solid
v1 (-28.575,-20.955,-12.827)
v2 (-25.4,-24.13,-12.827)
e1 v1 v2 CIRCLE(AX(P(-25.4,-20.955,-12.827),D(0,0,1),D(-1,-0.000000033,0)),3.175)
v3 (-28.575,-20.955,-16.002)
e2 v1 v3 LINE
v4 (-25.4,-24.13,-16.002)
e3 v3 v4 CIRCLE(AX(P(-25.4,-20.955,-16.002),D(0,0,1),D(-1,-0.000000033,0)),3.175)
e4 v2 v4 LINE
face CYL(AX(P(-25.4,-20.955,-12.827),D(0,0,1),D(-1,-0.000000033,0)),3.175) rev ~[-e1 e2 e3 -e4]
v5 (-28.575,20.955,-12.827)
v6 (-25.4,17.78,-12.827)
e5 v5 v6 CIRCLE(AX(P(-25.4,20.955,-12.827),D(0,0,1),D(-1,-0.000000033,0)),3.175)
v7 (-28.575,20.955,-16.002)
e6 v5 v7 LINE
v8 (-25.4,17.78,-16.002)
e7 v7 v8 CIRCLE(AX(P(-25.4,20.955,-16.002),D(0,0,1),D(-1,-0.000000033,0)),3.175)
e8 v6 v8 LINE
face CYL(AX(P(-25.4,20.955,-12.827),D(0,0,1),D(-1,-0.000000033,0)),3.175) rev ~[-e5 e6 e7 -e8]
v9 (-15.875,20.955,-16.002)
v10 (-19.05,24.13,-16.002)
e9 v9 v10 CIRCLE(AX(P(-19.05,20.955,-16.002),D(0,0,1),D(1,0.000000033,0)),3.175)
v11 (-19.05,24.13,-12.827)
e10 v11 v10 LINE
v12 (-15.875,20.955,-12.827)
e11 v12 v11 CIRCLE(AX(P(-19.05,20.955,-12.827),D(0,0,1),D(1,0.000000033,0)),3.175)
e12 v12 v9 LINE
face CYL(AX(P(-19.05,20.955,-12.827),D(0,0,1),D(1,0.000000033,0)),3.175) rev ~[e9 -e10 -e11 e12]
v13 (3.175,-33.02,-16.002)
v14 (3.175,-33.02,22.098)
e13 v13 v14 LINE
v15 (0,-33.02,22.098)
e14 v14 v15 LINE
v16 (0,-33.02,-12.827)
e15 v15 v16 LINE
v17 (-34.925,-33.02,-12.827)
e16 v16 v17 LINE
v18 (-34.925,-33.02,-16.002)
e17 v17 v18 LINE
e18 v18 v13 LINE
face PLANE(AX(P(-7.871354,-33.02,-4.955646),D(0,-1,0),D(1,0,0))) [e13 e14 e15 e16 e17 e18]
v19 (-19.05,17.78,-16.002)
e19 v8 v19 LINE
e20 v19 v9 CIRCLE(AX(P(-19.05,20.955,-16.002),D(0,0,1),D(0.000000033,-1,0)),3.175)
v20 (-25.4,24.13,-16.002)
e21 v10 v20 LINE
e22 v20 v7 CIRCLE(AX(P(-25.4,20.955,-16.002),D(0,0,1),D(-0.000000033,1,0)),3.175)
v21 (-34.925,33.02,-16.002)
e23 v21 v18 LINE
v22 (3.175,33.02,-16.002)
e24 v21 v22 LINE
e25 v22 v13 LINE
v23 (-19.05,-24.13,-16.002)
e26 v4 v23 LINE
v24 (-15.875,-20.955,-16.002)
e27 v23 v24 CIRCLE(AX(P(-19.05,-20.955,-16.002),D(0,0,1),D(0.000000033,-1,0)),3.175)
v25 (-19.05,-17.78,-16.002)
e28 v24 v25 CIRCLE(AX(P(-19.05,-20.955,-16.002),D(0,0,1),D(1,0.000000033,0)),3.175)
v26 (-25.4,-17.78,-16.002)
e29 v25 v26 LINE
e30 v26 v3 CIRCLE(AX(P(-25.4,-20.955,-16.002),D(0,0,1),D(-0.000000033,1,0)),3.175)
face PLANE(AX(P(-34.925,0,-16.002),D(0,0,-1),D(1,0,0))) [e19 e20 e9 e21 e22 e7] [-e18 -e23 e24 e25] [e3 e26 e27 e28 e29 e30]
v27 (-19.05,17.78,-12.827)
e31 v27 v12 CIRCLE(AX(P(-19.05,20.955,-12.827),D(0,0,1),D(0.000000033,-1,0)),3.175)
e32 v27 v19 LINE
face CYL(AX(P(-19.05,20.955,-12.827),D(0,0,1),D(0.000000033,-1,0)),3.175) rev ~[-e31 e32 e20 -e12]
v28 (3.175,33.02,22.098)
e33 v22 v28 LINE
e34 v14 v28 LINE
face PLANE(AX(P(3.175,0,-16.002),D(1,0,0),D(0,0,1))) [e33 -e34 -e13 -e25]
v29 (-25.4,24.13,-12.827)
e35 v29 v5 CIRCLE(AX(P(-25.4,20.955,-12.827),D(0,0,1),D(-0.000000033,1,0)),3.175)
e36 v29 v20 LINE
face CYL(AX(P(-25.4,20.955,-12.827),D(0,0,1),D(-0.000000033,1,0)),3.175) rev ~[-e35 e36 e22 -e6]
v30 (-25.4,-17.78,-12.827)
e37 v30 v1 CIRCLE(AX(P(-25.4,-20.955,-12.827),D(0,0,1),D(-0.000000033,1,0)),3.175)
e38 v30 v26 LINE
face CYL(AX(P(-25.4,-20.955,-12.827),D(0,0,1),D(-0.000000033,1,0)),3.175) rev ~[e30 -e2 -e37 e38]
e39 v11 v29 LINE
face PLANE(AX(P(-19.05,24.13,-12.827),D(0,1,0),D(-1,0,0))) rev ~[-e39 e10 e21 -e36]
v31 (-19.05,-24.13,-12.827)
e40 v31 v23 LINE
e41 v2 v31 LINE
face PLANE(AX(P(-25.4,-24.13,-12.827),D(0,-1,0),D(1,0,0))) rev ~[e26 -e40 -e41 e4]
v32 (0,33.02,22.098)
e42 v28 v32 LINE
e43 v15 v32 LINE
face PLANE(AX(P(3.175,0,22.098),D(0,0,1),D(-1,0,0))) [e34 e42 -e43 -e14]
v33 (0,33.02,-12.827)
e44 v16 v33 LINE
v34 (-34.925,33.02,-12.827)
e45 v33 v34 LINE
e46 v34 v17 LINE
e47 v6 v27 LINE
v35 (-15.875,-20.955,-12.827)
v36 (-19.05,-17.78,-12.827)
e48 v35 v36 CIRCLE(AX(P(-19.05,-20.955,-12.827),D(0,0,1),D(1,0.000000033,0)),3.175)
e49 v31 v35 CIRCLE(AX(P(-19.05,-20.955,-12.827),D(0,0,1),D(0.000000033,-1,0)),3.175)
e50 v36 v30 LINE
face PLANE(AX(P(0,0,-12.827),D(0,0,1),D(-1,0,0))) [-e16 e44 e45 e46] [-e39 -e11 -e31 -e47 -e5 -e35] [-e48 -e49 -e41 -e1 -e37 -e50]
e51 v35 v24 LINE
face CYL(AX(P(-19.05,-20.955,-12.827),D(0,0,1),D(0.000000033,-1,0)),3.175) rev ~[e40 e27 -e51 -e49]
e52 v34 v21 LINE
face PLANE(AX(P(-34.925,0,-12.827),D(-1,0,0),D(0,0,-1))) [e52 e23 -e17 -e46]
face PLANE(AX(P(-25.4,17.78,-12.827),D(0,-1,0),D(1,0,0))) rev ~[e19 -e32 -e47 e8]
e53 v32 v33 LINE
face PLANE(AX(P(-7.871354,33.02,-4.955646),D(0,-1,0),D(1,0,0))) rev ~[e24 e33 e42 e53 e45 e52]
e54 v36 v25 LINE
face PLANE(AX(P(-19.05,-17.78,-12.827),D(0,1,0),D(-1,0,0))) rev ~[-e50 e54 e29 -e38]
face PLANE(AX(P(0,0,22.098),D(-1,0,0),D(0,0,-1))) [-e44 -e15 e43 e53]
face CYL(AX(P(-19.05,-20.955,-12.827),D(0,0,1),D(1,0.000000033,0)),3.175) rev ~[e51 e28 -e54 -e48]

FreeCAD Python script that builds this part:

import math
import FreeCAD as App
import Part
import Sketcher
from FreeCAD import Vector
Q = App.Units.Quantity

doc = App.newDocument("Part")
body = doc.addObject("PartDesign::Body", "Body")

sketch1 = body.newObject("Sketcher::SketchObject", "Sketch")
sketch1.AttachmentSupport = (doc.getObject("XZ_Plane"), [""])
sketch1.MapMode = "FlatFace"
sketch1.addGeometry([
    Part.LineSegment(Vector(0, -12.8, 0), Vector(-34.9, -12.8, 0)),
    Part.LineSegment(Vector(-34.9, -12.8, 0), Vector(-34.9, -16, 0)),
    Part.LineSegment(Vector(-34.9, -16, 0), Vector(3.2, -16, 0)),
    Part.LineSegment(Vector(3.2, -16, 0), Vector(3.2, 22.1, 0)),
    Part.LineSegment(Vector(3.2, 22.1, 0), Vector(0, 22.1, 0)),
    Part.LineSegment(Vector(0, 22.1, 0), Vector(0, -12.8, 0)),
], False)
sketch1.addConstraint([
    Sketcher.Constraint("Coincident", 0, 2, 1, 1),
    Sketcher.Constraint("Coincident", 1, 2, 2, 1),
    Sketcher.Constraint("Coincident", 2, 2, 3, 1),
    Sketcher.Constraint("Coincident", 3, 2, 4, 1),
    Sketcher.Constraint("Coincident", 4, 2, 5, 1),
    Sketcher.Constraint("Coincident", 5, 2, 0, 1),
    Sketcher.Constraint("Horizontal", 0),
    Sketcher.Constraint("Vertical", 1),
    Sketcher.Constraint("Horizontal", 2),
    Sketcher.Constraint("Vertical", 3),
    Sketcher.Constraint("Horizontal", 4),
    Sketcher.Constraint("Vertical", 5),
    Sketcher.Constraint("PointOnObject", 4, 2, -2),
    Sketcher.Constraint("Equal", 4, 1),
    Sketcher.Constraint("Equal", 2, 3),
    Sketcher.Constraint("DistanceX", 2, 1, 2, 2, Q("1.5 in")),
    Sketcher.Constraint("DistanceX", 0, 2, 0, 1, Q("1.375 in")),
    Sketcher.Constraint("DistanceY", 1, 2, -1, 1, Q("0.63 in")),
])
pad1 = body.newObject("PartDesign::Pad", "Pad")
pad1.Profile = sketch1
pad1.Length = Q("2.6 in")
pad1.Midplane = True

sketch2 = body.newObject("Sketcher::SketchObject", "Sketch001")
sketch2.AttachmentSupport = (doc.getObject("XY_Plane"), [""])
sketch2.MapMode = "FlatFace"
sketch2.AttachmentOffset = App.Placement(Vector(0, 0, -0.505 * 25.4), App.Rotation())
sketch2.addGeometry([
    Part.LineSegment(Vector(-25.4, 17.8, 0), Vector(-19.1, 17.8, 0)),
    Part.ArcOfCircle(Part.Circle(Vector(-19.1, 21, 0), Vector(0, 0, 1), 3.2), math.radians(-90), math.radians(0)),
    Part.ArcOfCircle(Part.Circle(Vector(-19.1, 21, 0), Vector(0, 0, 1), 3.2), math.radians(0), math.radians(90)),
    Part.LineSegment(Vector(-19.1, 24.1, 0), Vector(-25.4, 24.1, 0)),
    Part.ArcOfCircle(Part.Circle(Vector(-25.4, 21, 0), Vector(0, 0, 1), 3.2), math.radians(90), math.radians(180)),
    Part.ArcOfCircle(Part.Circle(Vector(-25.4, 21, 0), Vector(0, 0, 1), 3.2), math.radians(-180), math.radians(-90)),
    Part.ArcOfCircle(Part.Circle(Vector(-25.4, -21, 0), Vector(0, 0, 1), 3.2), math.radians(90), math.radians(180)),
    Part.ArcOfCircle(Part.Circle(Vector(-25.4, -21, 0), Vector(0, 0, 1), 3.2), math.radians(-180), math.radians(-90)),
    Part.LineSegment(Vector(-25.4, -24.1, 0), Vector(-19.1, -24.1, 0)),
    Part.ArcOfCircle(Part.Circle(Vector(-19.1, -21, 0), Vector(0, 0, 1), 3.2), math.radians(-90), math.radians(0)),
    Part.ArcOfCircle(Part.Circle(Vector(-19.1, -21, 0), Vector(0, 0, 1), 3.2), math.radians(0), math.radians(90)),
    Part.LineSegment(Vector(-19.1, -17.8, 0), Vector(-25.4, -17.8, 0)),
], False)
sketch2.addConstraint([
    Sketcher.Constraint("Tangent", 0, 2, 1, 1),
    Sketcher.Constraint("Tangent", 1, 2, 2, 1),
    Sketcher.Constraint("Tangent", 2, 2, 3, 1),
    Sketcher.Constraint("Tangent", 3, 2, 4, 1),
    Sketcher.Constraint("Tangent", 4, 2, 5, 1),
    Sketcher.Constraint("Tangent", 5, 2, 0, 1),
    Sketcher.Constraint("Tangent", 6, 2, 7, 1),
    Sketcher.Constraint("Tangent", 7, 2, 8, 1),
    Sketcher.Constraint("Tangent", 8, 2, 9, 1),
    Sketcher.Constraint("Tangent", 9, 2, 10, 1),
    Sketcher.Constraint("Tangent", 10, 2, 11, 1),
    Sketcher.Constraint("Tangent", 11, 2, 6, 1),
    Sketcher.Constraint("Horizontal", 0),
    Sketcher.Constraint("Horizontal", 3),
    Sketcher.Constraint("Horizontal", 8),
    Sketcher.Constraint("Horizontal", 11),
    Sketcher.Constraint("Equal", 1, 2),
    Sketcher.Constraint("Equal", 2, 4),
    Sketcher.Constraint("Equal", 5, 6),
    Sketcher.Constraint("Equal", 6, 7),
    Sketcher.Constraint("Equal", 7, 9),
    Sketcher.Constraint("Symmetric", 4, 3, 6, 3, -1),
    Sketcher.Constraint("Symmetric", 1, 2, 9, 2, -1),
    Sketcher.Constraint("Horizontal", 5, 3, 1, 2),
    Sketcher.Constraint("Horizontal", 1, 2, 4, 2),
    Sketcher.Constraint("Horizontal", 10, 3, 6, 2),
    Sketcher.Constraint("DistanceX", 4, 3, -1, 1, Q("1 in")),
    Sketcher.Constraint("Radius", 1, Q("0.125 in")),
    Sketcher.Constraint("DistanceX", 0, 1, 0, 2, Q("0.25 in")),
    Sketcher.Constraint("DistanceY", -1, 1, 0, 2, Q("0.7 in")),
])
pocket1 = body.newObject("PartDesign::Pocket", "Pocket")
pocket1.Profile = sketch2
pocket1.Type = "ThroughAll"

doc.recompute()
